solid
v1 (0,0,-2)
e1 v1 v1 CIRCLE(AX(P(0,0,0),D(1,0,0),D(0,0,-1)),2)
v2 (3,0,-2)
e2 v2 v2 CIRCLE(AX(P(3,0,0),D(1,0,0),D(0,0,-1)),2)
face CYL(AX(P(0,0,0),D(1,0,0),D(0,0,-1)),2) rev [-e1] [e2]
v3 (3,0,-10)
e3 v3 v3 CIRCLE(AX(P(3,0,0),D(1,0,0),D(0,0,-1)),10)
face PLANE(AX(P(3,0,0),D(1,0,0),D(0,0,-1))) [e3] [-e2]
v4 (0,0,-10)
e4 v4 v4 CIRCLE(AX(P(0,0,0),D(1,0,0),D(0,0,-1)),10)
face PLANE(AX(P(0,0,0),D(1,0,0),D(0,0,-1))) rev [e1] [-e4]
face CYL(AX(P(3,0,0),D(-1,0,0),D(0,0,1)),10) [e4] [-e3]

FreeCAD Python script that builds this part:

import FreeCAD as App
import Part
import Sketcher
from FreeCAD import Vector

doc = App.newDocument("Part")
body = doc.addObject("PartDesign::Body", "Body")

# Sketch on YZ plane
sketch1 = body.newObject("Sketcher::SketchObject", "Sketch")
sketch1.AttachmentSupport = (doc.getObject("YZ_Plane"), [""])
sketch1.MapMode = "FlatFace"
sketch1.addGeometry(Part.Circle(Vector(0, 0, 0), Vector(0, 0, 1), 10), False)
sketch1.addConstraint(Sketcher.Constraint("Coincident", 0, 3, -1, 1))
sketch1.addConstraint(Sketcher.Constraint("Diameter", 0, 20.0))
pad1 = body.newObject("PartDesign::Pad", "Pad")
pad1.Profile = sketch1
pad1.Length = 3

# Sketch on YZ plane
sketch2 = body.newObject("Sketcher::SketchObject", "Sketch001")
sketch2.AttachmentSupport = (doc.getObject("YZ_Plane"), [""])
sketch2.MapMode = "FlatFace"
sketch2.AttachmentOffset = App.Placement(Vector(0, 0, 3), App.Rotation())
sketch2.addGeometry(Part.Circle(Vector(0, 0, 0), Vector(0, 0, 1), 2), False)
sketch2.addConstraint(Sketcher.Constraint("Coincident", 0, 3, -1, 1))
sketch2.addConstraint(Sketcher.Constraint("Diameter", 0, 4.0))
pocket1 = body.newObject("PartDesign::Pocket", "Pocket")
pocket1.Profile = sketch2
pocket1.Length = 3

doc.recompute()
